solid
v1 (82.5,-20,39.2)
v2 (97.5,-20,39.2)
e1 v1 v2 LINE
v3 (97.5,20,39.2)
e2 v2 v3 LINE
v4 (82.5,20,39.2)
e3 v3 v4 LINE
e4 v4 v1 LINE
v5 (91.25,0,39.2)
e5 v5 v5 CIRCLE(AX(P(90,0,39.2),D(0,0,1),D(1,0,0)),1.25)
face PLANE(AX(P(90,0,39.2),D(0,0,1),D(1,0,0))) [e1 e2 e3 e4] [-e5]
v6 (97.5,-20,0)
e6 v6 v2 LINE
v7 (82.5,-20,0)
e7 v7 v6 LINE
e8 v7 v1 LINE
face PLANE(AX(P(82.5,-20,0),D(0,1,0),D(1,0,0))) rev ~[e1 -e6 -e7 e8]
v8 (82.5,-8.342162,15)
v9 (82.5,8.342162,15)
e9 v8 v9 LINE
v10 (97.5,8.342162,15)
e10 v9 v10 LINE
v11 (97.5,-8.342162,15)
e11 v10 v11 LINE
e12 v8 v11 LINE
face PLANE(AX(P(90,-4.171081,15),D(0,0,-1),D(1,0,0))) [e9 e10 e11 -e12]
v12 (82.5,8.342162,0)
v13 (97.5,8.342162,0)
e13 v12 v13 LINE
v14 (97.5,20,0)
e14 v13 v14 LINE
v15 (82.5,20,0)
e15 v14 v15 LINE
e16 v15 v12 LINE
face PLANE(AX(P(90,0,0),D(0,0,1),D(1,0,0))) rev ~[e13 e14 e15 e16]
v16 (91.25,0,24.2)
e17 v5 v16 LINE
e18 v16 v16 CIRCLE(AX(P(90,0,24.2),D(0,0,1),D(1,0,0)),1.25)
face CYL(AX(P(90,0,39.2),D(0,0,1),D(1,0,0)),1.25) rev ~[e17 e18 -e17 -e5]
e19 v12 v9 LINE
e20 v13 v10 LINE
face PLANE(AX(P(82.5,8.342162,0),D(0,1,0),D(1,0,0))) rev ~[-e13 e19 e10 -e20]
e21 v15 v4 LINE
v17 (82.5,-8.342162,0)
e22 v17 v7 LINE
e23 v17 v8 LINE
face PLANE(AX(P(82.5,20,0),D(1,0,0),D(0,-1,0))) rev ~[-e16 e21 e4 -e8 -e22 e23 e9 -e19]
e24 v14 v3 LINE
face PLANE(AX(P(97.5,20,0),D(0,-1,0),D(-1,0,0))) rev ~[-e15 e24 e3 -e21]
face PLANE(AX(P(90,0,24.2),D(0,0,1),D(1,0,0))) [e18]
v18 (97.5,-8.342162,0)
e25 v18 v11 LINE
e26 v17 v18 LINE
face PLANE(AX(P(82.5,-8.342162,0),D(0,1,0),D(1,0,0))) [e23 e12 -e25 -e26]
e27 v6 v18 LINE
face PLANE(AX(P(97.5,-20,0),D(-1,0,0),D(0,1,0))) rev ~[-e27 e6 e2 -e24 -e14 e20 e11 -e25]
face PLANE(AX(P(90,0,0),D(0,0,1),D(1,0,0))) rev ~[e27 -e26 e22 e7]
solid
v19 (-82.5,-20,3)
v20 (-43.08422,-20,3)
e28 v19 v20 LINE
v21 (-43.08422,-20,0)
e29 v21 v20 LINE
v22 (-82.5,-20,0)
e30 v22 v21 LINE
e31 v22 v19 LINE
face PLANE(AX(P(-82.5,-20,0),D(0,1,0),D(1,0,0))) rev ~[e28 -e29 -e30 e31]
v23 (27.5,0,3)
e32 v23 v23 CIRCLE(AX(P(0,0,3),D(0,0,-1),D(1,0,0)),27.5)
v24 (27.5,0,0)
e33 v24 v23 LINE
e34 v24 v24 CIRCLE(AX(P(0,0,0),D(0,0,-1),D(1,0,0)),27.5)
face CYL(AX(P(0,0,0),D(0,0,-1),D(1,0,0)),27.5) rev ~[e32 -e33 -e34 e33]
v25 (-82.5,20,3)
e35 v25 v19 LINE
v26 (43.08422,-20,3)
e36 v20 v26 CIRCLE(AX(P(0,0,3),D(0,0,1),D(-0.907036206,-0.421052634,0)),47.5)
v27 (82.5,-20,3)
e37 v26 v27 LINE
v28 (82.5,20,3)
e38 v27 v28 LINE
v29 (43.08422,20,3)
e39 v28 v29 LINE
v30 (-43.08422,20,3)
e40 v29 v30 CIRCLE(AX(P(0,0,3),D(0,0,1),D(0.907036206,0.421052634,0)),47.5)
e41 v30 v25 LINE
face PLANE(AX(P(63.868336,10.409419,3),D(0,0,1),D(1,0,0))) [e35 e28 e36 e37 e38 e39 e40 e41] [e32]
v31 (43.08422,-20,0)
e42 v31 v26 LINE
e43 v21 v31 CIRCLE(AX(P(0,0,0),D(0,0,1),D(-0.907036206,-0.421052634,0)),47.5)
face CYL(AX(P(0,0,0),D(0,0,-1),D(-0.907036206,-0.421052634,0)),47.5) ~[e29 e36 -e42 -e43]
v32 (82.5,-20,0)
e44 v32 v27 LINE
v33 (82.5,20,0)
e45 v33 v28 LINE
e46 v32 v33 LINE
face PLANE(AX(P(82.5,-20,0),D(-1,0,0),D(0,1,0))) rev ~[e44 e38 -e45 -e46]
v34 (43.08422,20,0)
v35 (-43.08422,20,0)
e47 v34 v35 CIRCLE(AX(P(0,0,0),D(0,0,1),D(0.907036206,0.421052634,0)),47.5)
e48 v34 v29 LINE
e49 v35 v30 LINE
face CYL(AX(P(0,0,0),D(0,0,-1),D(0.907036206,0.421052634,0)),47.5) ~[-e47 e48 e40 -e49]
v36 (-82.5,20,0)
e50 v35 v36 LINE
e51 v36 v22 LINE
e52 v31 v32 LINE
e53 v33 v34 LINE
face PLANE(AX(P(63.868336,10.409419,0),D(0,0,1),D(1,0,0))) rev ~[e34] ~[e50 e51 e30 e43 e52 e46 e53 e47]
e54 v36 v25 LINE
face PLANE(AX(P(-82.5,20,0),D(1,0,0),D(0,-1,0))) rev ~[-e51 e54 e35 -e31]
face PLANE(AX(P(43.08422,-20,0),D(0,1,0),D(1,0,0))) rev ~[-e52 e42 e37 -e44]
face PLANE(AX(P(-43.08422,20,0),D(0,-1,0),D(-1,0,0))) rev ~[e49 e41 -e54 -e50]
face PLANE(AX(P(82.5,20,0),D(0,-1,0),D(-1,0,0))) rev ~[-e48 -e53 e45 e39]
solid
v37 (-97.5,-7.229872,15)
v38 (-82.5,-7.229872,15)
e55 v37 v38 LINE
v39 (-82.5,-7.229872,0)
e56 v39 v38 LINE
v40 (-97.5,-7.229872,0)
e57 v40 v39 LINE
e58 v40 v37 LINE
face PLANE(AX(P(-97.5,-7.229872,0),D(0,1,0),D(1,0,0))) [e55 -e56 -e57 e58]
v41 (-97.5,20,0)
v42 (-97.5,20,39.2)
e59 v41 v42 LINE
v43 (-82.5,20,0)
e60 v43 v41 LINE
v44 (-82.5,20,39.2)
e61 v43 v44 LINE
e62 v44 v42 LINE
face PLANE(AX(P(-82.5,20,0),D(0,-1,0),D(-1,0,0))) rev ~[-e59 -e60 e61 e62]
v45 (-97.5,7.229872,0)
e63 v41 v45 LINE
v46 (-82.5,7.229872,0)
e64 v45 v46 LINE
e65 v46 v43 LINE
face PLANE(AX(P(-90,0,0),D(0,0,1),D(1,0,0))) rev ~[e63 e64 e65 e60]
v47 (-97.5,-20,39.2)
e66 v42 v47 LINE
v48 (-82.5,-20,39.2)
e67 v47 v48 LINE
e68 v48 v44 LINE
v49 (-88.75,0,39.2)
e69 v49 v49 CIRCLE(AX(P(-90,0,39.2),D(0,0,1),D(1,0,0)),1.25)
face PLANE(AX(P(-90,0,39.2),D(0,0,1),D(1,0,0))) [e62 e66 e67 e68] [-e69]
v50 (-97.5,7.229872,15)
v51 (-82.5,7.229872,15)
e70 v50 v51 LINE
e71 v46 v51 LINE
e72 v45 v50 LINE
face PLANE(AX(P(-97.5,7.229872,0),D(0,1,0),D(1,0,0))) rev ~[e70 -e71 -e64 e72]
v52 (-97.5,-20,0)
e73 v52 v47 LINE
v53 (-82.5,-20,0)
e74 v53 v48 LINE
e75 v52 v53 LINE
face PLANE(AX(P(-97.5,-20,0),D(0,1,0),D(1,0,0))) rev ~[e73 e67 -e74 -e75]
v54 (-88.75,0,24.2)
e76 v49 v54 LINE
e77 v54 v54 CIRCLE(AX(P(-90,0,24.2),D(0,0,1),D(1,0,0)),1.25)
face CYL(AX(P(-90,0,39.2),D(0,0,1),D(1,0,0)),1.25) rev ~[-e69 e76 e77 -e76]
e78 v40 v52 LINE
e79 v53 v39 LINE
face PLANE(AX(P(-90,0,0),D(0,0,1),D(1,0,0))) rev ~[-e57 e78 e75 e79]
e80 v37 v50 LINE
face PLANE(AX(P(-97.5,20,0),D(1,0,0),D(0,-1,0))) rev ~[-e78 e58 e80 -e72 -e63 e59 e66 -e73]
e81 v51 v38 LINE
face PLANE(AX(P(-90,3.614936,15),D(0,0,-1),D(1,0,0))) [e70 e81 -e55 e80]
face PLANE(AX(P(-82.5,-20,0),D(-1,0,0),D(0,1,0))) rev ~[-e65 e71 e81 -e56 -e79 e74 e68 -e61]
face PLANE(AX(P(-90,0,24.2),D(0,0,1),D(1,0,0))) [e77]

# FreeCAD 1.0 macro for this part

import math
import FreeCAD as App
import Part
import Sketcher

V = App.Vector
Q = App.Units.Quantity


def add_polygon(sketch, points):
    """Adds a closed chain of lines whose ends are joined by coincident constraints."""
    first, n = sketch.GeometryCount, len(points)
    for a, b in zip(points, points[1:] + points[:1]):
        sketch.addGeometry(Part.LineSegment(App.Vector(*a, 0), App.Vector(*b, 0)), False)
    for i in range(n):
        sketch.addConstraint(Sketcher.Constraint("Coincident", first + i, 2, first + (i + 1) % n, 1))

doc = App.newDocument("Part")
body = doc.addObject("PartDesign::Body", "Body")
body.AllowCompound = True

# Sketch on XY plane
sketch1 = doc.addObject("Sketcher::SketchObject", "Sketch")
body.addObject(sketch1)
sketch1.AttachmentSupport = (doc.XY_Plane, [""])
sketch1.MapMode = "FlatFace"
add_polygon(sketch1, [(-82, -20), (-82, 20), (-98, 20), (-98, -20)])  # lines 0-3
add_polygon(sketch1, [(82, 20), (82, -20), (98, -20), (98, 20)])  # lines 4-7
sketch1.addConstraint([
    Sketcher.Constraint("Vertical", 0),
    Sketcher.Constraint("Horizontal", 1),
    Sketcher.Constraint("Vertical", 2),
    Sketcher.Constraint("Horizontal", 3),
    Sketcher.Constraint("Vertical", 4),
    Sketcher.Constraint("Horizontal", 5),
    Sketcher.Constraint("Vertical", 6),
    Sketcher.Constraint("Horizontal", 7),
    Sketcher.Constraint("Symmetric", 0, 2, 4, 2, -1, 1),
    Sketcher.Constraint("Symmetric", 2, 2, 6, 2, -1, 1),
    Sketcher.Constraint("Horizontal", 3, 2, 4, 2),
    Sketcher.Constraint("DistanceX", 1, 2, 1, 1, Q("15 mm")),
    Sketcher.Constraint("DistanceY", 0, 1, 0, 2, Q("40 mm")),
    Sketcher.Constraint("DistanceX", 3, 2, 4, 2, Q("165 mm")),
])
pad1 = doc.addObject("PartDesign::Pad", "Pad")
body.addObject(pad1)
pad1.Profile = sketch1
pad1.Length = 39.2

# Sketch on XY plane
sketch2 = doc.addObject("Sketcher::SketchObject", "Sketch001")
body.addObject(sketch2)
sketch2.AttachmentSupport = (doc.XY_Plane, [""])
sketch2.MapMode = "FlatFace"
add_polygon(sketch2, [(-98, 7), (-82, 7), (-82, -7), (-98, -7)])  # lines 0-3
sketch2.addConstraint([
    Sketcher.Constraint("Horizontal", 0),
    Sketcher.Constraint("Vertical", 1),
    Sketcher.Constraint("Horizontal", 2),
    Sketcher.Constraint("Vertical", 3),
    Sketcher.Constraint("DistanceX", 0, 1, 0, 2, Q("15 mm")),
    Sketcher.Constraint("DistanceX", 0, 2, -1, 1, Q("82.5 mm")),
    Sketcher.Constraint("DistanceY", 1, 2, 1, 1, Q("14.459745 mm")),
    Sketcher.Constraint("DistanceY", -1, 1, 0, 2, Q("7.229872 mm")),
])
pocket1 = doc.addObject("PartDesign::Pocket", "Pocket")
body.addObject(pocket1)
pocket1.Profile = sketch2
pocket1.Length = 15
pocket1.Reversed = True

# Sketch on XY plane
sketch3 = doc.addObject("Sketcher::SketchObject", "Sketch002")
body.addObject(sketch3)
sketch3.AttachmentSupport = (doc.XY_Plane, [""])
sketch3.MapMode = "FlatFace"
add_polygon(sketch3, [(82, -8), (82, 8), (98, 8), (98, -8)])  # lines 0-3
sketch3.addConstraint([
    Sketcher.Constraint("Vertical", 0),
    Sketcher.Constraint("Horizontal", 1),
    Sketcher.Constraint("Vertical", 2),
    Sketcher.Constraint("Horizontal", 3),
    Sketcher.Constraint("DistanceX", 1, 1, 1, 2, Q("15 mm")),
    Sketcher.Constraint("DistanceX", -1, 1, 0, 2, Q("82.5 mm")),
    Sketcher.Constraint("DistanceY", 0, 1, 0, 2, Q("16.684324 mm")),
    Sketcher.Constraint("DistanceY", -1, 1, 0, 2, Q("8.342162 mm")),
])
pocket2 = doc.addObject("PartDesign::Pocket", "Pocket001")
body.addObject(pocket2)
pocket2.Profile = sketch3
pocket2.Length = 15
pocket2.Reversed = True

# Sketch on XY plane
sketch4 = doc.addObject("Sketcher::SketchObject", "Sketch003")
body.addObject(sketch4)
sketch4.AttachmentSupport = (doc.XY_Plane, [""])
sketch4.MapMode = "FlatFace"
sketch4.AttachmentOffset = App.Placement(V(0, 0, 39.2), App.Rotation())
sketch4.addGeometry(Part.Circle(V(-90, 0, 0), V(0, 0, 1), 1.2), False)
sketch4.addConstraint([
    Sketcher.Constraint("PointOnObject", 0, 3, -1),
    Sketcher.Constraint("Diameter", 0, Q("2.5 mm")),
    Sketcher.Constraint("DistanceX", 0, 3, -1, 1, Q("90 mm")),
])
pocket3 = doc.addObject("PartDesign::Pocket", "Pocket002")
body.addObject(pocket3)
pocket3.Profile = sketch4
pocket3.Length = 15

# Sketch on XY plane
sketch5 = doc.addObject("Sketcher::SketchObject", "Sketch004")
body.addObject(sketch5)
sketch5.AttachmentSupport = (doc.XY_Plane, [""])
sketch5.MapMode = "FlatFace"
sketch5.AttachmentOffset = App.Placement(V(0, 0, 39.2), App.Rotation())
sketch5.addGeometry(Part.Circle(V(90, 0, 0), V(0, 0, 1), 1.2), False)
sketch5.addConstraint([
    Sketcher.Constraint("PointOnObject", 0, 3, -1),
    Sketcher.Constraint("Diameter", 0, Q("2.5 mm")),
    Sketcher.Constraint("DistanceX", -1, 1, 0, 3, Q("90 mm")),
])
pocket4 = doc.addObject("PartDesign::Pocket", "Pocket003")
body.addObject(pocket4)
pocket4.Profile = sketch5
pocket4.Length = 15
body2 = doc.addObject("PartDesign::Body", "Body001")

# Sketch on XY plane
sketch6 = doc.addObject("Sketcher::SketchObject", "Sketch005")
body2.addObject(sketch6)
sketch6.AttachmentSupport = (doc.getObject("XY_Plane001"), [""])
sketch6.MapMode = "FlatFace"
sketch6.addGeometry([
    Part.LineSegment(V(43, -20, 0), V(82, -20, 0)),  # 0
    Part.LineSegment(V(82, -20, 0), V(82, 20, 0)),  # 1
    Part.LineSegment(V(82, 20, 0), V(43, 20, 0)),  # 2
    Part.ArcOfCircle(Part.Circle(V(0, 0, 0), V(0, 0, 1), 48), math.radians(25), math.radians(155)),  # 3
    Part.LineSegment(V(-43, 20, 0), V(-82, 20, 0)),  # 4
    Part.LineSegment(V(-82, 20, 0), V(-82, -20, 0)),  # 5
    Part.LineSegment(V(-82, -20, 0), V(-43, -20, 0)),  # 6
    Part.ArcOfCircle(Part.Circle(V(0, 0, 0), V(0, 0, 1), 48), math.radians(-155), math.radians(-25)),  # 7
    Part.Circle(V(0, 0, 0), V(0, 0, 1), 28),  # 8
], False)
sketch6.addConstraint([
    Sketcher.Constraint("Coincident", 0, 2, 1, 1),
    Sketcher.Constraint("Coincident", 1, 2, 2, 1),
    Sketcher.Constraint("Coincident", 2, 2, 3, 1),
    Sketcher.Constraint("Coincident", 3, 2, 4, 1),
    Sketcher.Constraint("Coincident", 4, 2, 5, 1),
    Sketcher.Constraint("Coincident", 5, 2, 6, 1),
    Sketcher.Constraint("Coincident", 6, 2, 7, 1),
    Sketcher.Constraint("Coincident", 7, 2, 0, 1),
    Sketcher.Constraint("Horizontal", 0),
    Sketcher.Constraint("Vertical", 1),
    Sketcher.Constraint("Horizontal", 2),
    Sketcher.Constraint("Horizontal", 4),
    Sketcher.Constraint("Vertical", 5),
    Sketcher.Constraint("Horizontal", 6),
    Sketcher.Constraint("Coincident", 3, 3, -1, 1),
    Sketcher.Constraint("Coincident", 7, 3, -1, 1),
    Sketcher.Constraint("Coincident", 8, 3, -1, 1),
    Sketcher.Constraint("Equal", 3, 7),
    Sketcher.Constraint("Symmetric", 0, 2, 4, 2, -1, 1),
    Sketcher.Constraint("Horizontal", 2, 2, 3, 2),
    Sketcher.Constraint("Horizontal", 0, 2, 5, 2),
    Sketcher.Constraint("Diameter", 8, Q("55 mm")),
    Sketcher.Constraint("Radius", 3, Q("47.5 mm")),
    Sketcher.Constraint("DistanceY", 1, 1, 1, 2, Q("40 mm")),
    Sketcher.Constraint("DistanceX", -1, 1, 0, 2, Q("82.5 mm")),
])
pad2 = doc.addObject("PartDesign::Pad", "Pad001")
body2.addObject(pad2)
pad2.Profile = sketch6
pad2.Length = 3

doc.recompute()
